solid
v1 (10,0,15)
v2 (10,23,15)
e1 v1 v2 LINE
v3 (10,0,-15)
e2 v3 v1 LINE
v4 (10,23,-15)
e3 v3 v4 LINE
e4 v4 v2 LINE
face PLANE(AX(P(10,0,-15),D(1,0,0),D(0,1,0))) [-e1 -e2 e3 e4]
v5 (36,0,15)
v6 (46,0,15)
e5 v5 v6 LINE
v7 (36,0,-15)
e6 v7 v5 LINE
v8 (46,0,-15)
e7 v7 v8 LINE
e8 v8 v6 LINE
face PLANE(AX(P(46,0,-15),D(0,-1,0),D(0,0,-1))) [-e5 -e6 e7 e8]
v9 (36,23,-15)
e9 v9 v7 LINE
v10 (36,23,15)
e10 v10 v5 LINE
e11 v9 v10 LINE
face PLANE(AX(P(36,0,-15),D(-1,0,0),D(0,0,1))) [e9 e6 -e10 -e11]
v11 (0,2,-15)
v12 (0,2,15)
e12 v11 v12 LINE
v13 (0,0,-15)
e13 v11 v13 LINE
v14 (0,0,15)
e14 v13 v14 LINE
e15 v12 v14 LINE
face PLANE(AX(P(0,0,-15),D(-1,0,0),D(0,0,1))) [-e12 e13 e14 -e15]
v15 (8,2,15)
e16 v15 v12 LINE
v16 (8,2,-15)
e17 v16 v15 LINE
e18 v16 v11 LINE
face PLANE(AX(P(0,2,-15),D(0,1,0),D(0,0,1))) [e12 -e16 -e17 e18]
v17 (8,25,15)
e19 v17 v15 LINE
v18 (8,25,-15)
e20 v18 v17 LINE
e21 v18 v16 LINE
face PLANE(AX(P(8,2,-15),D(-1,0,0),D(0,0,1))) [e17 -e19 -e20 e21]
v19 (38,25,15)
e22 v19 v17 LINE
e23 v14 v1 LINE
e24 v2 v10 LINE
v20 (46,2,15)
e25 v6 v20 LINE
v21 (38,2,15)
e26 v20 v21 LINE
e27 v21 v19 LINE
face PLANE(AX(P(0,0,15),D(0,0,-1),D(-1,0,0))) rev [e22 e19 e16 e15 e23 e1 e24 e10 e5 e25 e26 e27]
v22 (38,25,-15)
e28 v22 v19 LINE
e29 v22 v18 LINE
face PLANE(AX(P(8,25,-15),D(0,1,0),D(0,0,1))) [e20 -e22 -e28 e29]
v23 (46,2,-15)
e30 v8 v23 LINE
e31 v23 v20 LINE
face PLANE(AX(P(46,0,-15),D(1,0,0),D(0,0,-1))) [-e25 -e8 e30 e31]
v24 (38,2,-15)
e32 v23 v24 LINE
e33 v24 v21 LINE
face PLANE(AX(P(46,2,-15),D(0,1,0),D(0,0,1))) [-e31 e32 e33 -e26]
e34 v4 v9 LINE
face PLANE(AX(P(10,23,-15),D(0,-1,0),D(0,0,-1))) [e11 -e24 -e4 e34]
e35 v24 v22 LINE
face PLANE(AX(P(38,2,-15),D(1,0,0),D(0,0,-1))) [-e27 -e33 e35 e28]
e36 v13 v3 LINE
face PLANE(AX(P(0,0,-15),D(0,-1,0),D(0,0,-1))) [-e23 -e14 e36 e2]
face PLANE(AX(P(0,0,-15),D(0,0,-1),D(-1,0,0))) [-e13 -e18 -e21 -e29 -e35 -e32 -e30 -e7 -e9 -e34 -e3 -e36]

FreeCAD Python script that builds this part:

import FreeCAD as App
import Part
import Sketcher
from FreeCAD import Vector
Q = App.Units.Quantity

doc = App.newDocument("Part")
body = doc.addObject("PartDesign::Body", "Body")

sketch1 = doc.addObject("Sketcher::SketchObject", "Sketch")
body.addObject(sketch1)
sketch1.AttachmentSupport = (doc.XY_Plane, [""])
sketch1.MapMode = "FlatFace"
sketch1.addGeometry(Part.LineSegment(Vector(0, 0, 0), Vector(10, 0, 0)), False)
sketch1.addGeometry(Part.LineSegment(Vector(10, 0, 0), Vector(10, 23, 0)), False)
sketch1.addGeometry(Part.LineSegment(Vector(10, 23, 0), Vector(36, 23, 0)), False)
sketch1.addGeometry(Part.LineSegment(Vector(36, 23, 0), Vector(36, 0, 0)), False)
sketch1.addGeometry(Part.LineSegment(Vector(36, 0, 0), Vector(46, 0, 0)), False)
sketch1.addGeometry(Part.LineSegment(Vector(46, 0, 0), Vector(46, 2, 0)), False)
sketch1.addGeometry(Part.LineSegment(Vector(46, 2, 0), Vector(38, 2, 0)), False)
sketch1.addGeometry(Part.LineSegment(Vector(38, 2, 0), Vector(38, 25, 0)), False)
sketch1.addGeometry(Part.LineSegment(Vector(38, 25, 0), Vector(8, 25, 0)), False)
sketch1.addGeometry(Part.LineSegment(Vector(8, 25, 0), Vector(8, 2, 0)), False)
sketch1.addGeometry(Part.LineSegment(Vector(8, 2, 0), Vector(0, 2, 0)), False)
sketch1.addGeometry(Part.LineSegment(Vector(0, 2, 0), Vector(0, 0, 0)), False)
sketch1.addConstraint(Sketcher.Constraint("Coincident", 0, 2, 1, 1))
sketch1.addConstraint(Sketcher.Constraint("Coincident", 1, 2, 2, 1))
sketch1.addConstraint(Sketcher.Constraint("Coincident", 2, 2, 3, 1))
sketch1.addConstraint(Sketcher.Constraint("Coincident", 3, 2, 4, 1))
sketch1.addConstraint(Sketcher.Constraint("Coincident", 4, 2, 5, 1))
sketch1.addConstraint(Sketcher.Constraint("Coincident", 5, 2, 6, 1))
sketch1.addConstraint(Sketcher.Constraint("Coincident", 6, 2, 7, 1))
sketch1.addConstraint(Sketcher.Constraint("Coincident", 7, 2, 8, 1))
sketch1.addConstraint(Sketcher.Constraint("Coincident", 8, 2, 9, 1))
sketch1.addConstraint(Sketcher.Constraint("Coincident", 9, 2, 10, 1))
sketch1.addConstraint(Sketcher.Constraint("Coincident", 10, 2, 11, 1))
sketch1.addConstraint(Sketcher.Constraint("Coincident", 11, 2, 0, 1))
sketch1.addConstraint(Sketcher.Constraint("Horizontal", 0))
sketch1.addConstraint(Sketcher.Constraint("Vertical", 1))
sketch1.addConstraint(Sketcher.Constraint("Horizontal", 2))
sketch1.addConstraint(Sketcher.Constraint("Vertical", 3))
sketch1.addConstraint(Sketcher.Constraint("Horizontal", 4))
sketch1.addConstraint(Sketcher.Constraint("Vertical", 5))
sketch1.addConstraint(Sketcher.Constraint("Horizontal", 6))
sketch1.addConstraint(Sketcher.Constraint("Vertical", 7))
sketch1.addConstraint(Sketcher.Constraint("Horizontal", 8))
sketch1.addConstraint(Sketcher.Constraint("Vertical", 9))
sketch1.addConstraint(Sketcher.Constraint("Horizontal", 10))
sketch1.addConstraint(Sketcher.Constraint("Vertical", 11))
sketch1.addConstraint(Sketcher.Constraint("Coincident", 11, 2, -1, 1))
sketch1.addConstraint(Sketcher.Constraint("PointOnObject", 3, 2, -1))
sketch1.addConstraint(Sketcher.Constraint("Horizontal", 6, 2, 9, 2))
sketch1.addConstraint(Sketcher.Constraint("Equal", 0, 4))
sketch1.addConstraint(Sketcher.Constraint("Equal", 6, 10))
sketch1.addConstraint(Sketcher.Constraint("Equal", 3, 7))
sketch1.addConstraint(Sketcher.Constraint("DistanceX", 0, 1, 0, 2, Q("10 mm")))
sketch1.addConstraint(Sketcher.Constraint("DistanceX", 2, 1, 2, 2, Q("26 mm")))
sketch1.addConstraint(Sketcher.Constraint("DistanceX", 6, 2, 6, 1, Q("8 mm")))
sketch1.addConstraint(Sketcher.Constraint("DistanceY", 1, 1, 1, 2, Q("23 mm")))
sketch1.addConstraint(Sketcher.Constraint("DistanceY", 5, 1, 5, 2, Q("2 mm")))
pad1 = doc.addObject("PartDesign::Pad", "Pad")
body.addObject(pad1)
pad1.Profile = sketch1
pad1.Length = 30
pad1.Midplane = True

doc.recompute()
